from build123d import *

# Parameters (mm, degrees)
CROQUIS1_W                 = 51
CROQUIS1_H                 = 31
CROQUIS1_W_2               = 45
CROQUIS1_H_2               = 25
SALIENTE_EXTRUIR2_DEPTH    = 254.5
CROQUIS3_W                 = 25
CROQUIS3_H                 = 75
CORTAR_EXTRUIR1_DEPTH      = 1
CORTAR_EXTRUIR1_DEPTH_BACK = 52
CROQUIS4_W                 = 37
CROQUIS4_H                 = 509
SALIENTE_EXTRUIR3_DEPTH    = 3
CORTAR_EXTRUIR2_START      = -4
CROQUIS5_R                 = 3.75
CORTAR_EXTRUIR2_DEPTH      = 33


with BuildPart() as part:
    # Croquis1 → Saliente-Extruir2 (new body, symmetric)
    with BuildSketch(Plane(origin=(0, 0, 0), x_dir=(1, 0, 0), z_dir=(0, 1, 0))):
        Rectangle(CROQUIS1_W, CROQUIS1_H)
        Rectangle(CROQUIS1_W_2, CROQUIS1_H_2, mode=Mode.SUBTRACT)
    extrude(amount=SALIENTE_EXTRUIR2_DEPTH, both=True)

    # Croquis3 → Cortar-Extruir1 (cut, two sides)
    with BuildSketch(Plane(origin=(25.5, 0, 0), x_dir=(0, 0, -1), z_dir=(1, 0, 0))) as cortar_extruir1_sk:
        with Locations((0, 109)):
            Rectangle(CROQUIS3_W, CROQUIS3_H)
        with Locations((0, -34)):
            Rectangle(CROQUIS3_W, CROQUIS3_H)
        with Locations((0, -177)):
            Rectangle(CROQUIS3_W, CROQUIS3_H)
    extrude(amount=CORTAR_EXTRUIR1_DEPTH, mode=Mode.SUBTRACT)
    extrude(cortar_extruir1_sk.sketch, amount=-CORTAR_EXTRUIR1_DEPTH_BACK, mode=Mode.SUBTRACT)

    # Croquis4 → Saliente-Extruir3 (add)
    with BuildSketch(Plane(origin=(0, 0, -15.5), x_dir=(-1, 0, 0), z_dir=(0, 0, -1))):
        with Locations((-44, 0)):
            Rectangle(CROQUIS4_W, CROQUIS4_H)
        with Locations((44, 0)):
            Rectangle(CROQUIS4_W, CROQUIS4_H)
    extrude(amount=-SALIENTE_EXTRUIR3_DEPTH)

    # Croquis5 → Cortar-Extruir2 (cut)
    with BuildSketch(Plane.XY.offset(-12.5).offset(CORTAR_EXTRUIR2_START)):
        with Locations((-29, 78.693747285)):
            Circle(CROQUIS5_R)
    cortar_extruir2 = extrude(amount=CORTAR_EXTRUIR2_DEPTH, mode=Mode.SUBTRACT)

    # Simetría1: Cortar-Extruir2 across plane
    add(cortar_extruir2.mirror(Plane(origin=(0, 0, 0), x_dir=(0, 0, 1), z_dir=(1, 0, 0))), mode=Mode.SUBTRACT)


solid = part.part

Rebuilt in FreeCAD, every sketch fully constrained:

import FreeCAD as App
import Part
import Sketcher


def add_polygon(sketch, points):
    """Adds a closed chain of lines whose ends are joined by coincident constraints."""
    first, n = sketch.GeometryCount, len(points)
    for a, b in zip(points, points[1:] + points[:1]):
        sketch.addGeometry(Part.LineSegment(App.Vector(*a, 0), App.Vector(*b, 0)), False)
    for i in range(n):
        sketch.addConstraint(Sketcher.Constraint("Coincident", first + i, 2, first + (i + 1) % n, 1))

doc = App.newDocument("Part")
params = doc.addObject("Spreadsheet::Sheet", "Params")
for row, (alias, value) in enumerate([
    ("sketch1_width", "51 mm"),
    ("sketch1_width2", "45 mm"),
    ("sketch1_height", "31 mm"),
    ("sketch1_height2", "25 mm"),
    ("pad1_length", "509 mm"),
    ("sketch2_width", "75 mm"),
    ("sketch2_height", "25 mm"),
    ("sketch3_width", "37 mm"),
    ("sketch3_height", "509 mm"),
    ("pad2_length", "3 mm"),
    ("sketch4_diameter", "7.5 mm"),
    ("pocket2_length", "33 mm"),
], start=1):
    params.set(f"A{row}", alias)
    params.set(f"B{row}", "=" + value)
    params.setAlias(f"B{row}", alias)

body = doc.addObject("PartDesign::Body", "Body")

sketch1 = doc.addObject("Sketcher::SketchObject", "Sketch")
body.addObject(sketch1)
sketch1.AttachmentSupport = (doc.XZ_Plane, [""])
sketch1.MapMode = "FlatFace"
add_polygon(sketch1, [(-25.5, -15.5), (-25.5, 15.5), (25.5, 15.5), (25.5, -15.5)])
add_polygon(sketch1, [(22.5, 12.5), (-22.5, 12.5), (-22.5, -12.5), (22.5, -12.5)])
sketch1.addConstraint(Sketcher.Constraint("Vertical", 0))
sketch1.addConstraint(Sketcher.Constraint("Horizontal", 1))
sketch1.addConstraint(Sketcher.Constraint("Vertical", 2))
sketch1.addConstraint(Sketcher.Constraint("Horizontal", 3))
sketch1.addConstraint(Sketcher.Constraint("Horizontal", 4))
sketch1.addConstraint(Sketcher.Constraint("Vertical", 5))
sketch1.addConstraint(Sketcher.Constraint("Horizontal", 6))
sketch1.addConstraint(Sketcher.Constraint("Vertical", 7))
sketch1.addConstraint(Sketcher.Constraint("Symmetric", 0, 2, 2, 2, -1, 1))
sketch1.addConstraint(Sketcher.Constraint("Symmetric", 4, 2, 6, 2, -1, 1))
sketch1.addConstraint(Sketcher.Constraint("DistanceX", 1, 1, 1, 2, 51.0))
sketch1.addConstraint(Sketcher.Constraint("DistanceX", 4, 2, 4, 1, 45.0))
sketch1.addConstraint(Sketcher.Constraint("DistanceY", 0, 1, 0, 2, 31.0))
sketch1.addConstraint(Sketcher.Constraint("DistanceY", 5, 2, 5, 1, 25.0))
sketch1.setExpression("Constraints[18]", "Params.sketch1_width")
sketch1.setExpression("Constraints[19]", "Params.sketch1_width2")
sketch1.setExpression("Constraints[20]", "Params.sketch1_height")
sketch1.setExpression("Constraints[21]", "Params.sketch1_height2")
pad1 = doc.addObject("PartDesign::Pad", "Pad")
body.addObject(pad1)
pad1.Profile = sketch1
pad1.setExpression("Length", "Params.pad1_length")
pad1.Midplane = True

sketch2 = doc.addObject("Sketcher::SketchObject", "Sketch001")
body.addObject(sketch2)
sketch2.AttachmentSupport = (doc.YZ_Plane, [""])
sketch2.MapMode = "FlatFace"
sketch2.AttachmentOffset = App.Placement(App.Vector(0, 0, 25.5), App.Rotation())
add_polygon(sketch2, [(146.5, 12.5), (71.5, 12.5), (71.5, -12.5), (146.5, -12.5)])
add_polygon(sketch2, [(3.5, 12.5), (-71.5, 12.5), (-71.5, -12.5), (3.5, -12.5)])
add_polygon(sketch2, [(-139.5, 12.5), (-214.5, 12.5), (-214.5, -12.5), (-139.5, -12.5)])
sketch2.addConstraint(Sketcher.Constraint("Horizontal", 0))
sketch2.addConstraint(Sketcher.Constraint("Vertical", 1))
sketch2.addConstraint(Sketcher.Constraint("Horizontal", 2))
sketch2.addConstraint(Sketcher.Constraint("Vertical", 3))
sketch2.addConstraint(Sketcher.Constraint("Horizontal", 4))
sketch2.addConstraint(Sketcher.Constraint("Vertical", 5))
sketch2.addConstraint(Sketcher.Constraint("Horizontal", 6))
sketch2.addConstraint(Sketcher.Constraint("Vertical", 7))
sketch2.addConstraint(Sketcher.Constraint("Horizontal", 8))
sketch2.addConstraint(Sketcher.Constraint("Vertical", 9))
sketch2.addConstraint(Sketcher.Constraint("Horizontal", 10))
sketch2.addConstraint(Sketcher.Constraint("Vertical", 11))
sketch2.addConstraint(Sketcher.Constraint("Symmetric", 1, 2, 4, 2, -1, 1))
sketch2.addConstraint(Sketcher.Constraint("Horizontal", 3, 2, 4, 2))
sketch2.addConstraint(Sketcher.Constraint("Horizontal", 2, 2, 5, 2))
sketch2.addConstraint(Sketcher.Constraint("Horizontal", 7, 2, 8, 2))
sketch2.addConstraint(Sketcher.Constraint("Horizontal", 6, 2, 9, 2))
sketch2.addConstraint(Sketcher.Constraint("Equal", 2, 4))
sketch2.addConstraint(Sketcher.Constraint("Equal", 6, 8))
sketch2.addConstraint(Sketcher.Constraint("DistanceX", 0, 2, 0, 1, 75.0))
sketch2.addConstraint(Sketcher.Constraint("DistanceY", 1, 2, 1, 1, 25.0))
sketch2.addConstraint(Sketcher.Constraint("DistanceX", 4, 2, 0, 2, 143.0))
sketch2.addConstraint(Sketcher.Constraint("DistanceX", 8, 2, 4, 2, 143.0))
sketch2.setExpression("Constraints[31]", "Params.sketch2_width")
sketch2.setExpression("Constraints[32]", "Params.sketch2_height")
pocket1 = doc.addObject("PartDesign::Pocket", "Pocket")
body.addObject(pocket1)
pocket1.Profile = sketch2
pocket1.Type = "ThroughAll"
pocket1.Midplane = True

sketch3 = doc.addObject("Sketcher::SketchObject", "Sketch002")
body.addObject(sketch3)
sketch3.AttachmentSupport = (doc.XY_Plane, [""])
sketch3.MapMode = "FlatFace"
sketch3.AttachmentOffset = App.Placement(App.Vector(0, 0, -15.5), App.Rotation())
add_polygon(sketch3, [(62.5, 254.5), (62.5, -254.5), (25.5, -254.5), (25.5, 254.5)])
add_polygon(sketch3, [(-25.5, 254.5), (-25.5, -254.5), (-62.5, -254.5), (-62.5, 254.5)])
sketch3.addConstraint(Sketcher.Constraint("Vertical", 0))
sketch3.addConstraint(Sketcher.Constraint("Horizontal", 1))
sketch3.addConstraint(Sketcher.Constraint("Vertical", 2))
sketch3.addConstraint(Sketcher.Constraint("Horizontal", 3))
sketch3.addConstraint(Sketcher.Constraint("Vertical", 4))
sketch3.addConstraint(Sketcher.Constraint("Horizontal", 5))
sketch3.addConstraint(Sketcher.Constraint("Vertical", 6))
sketch3.addConstraint(Sketcher.Constraint("Horizontal", 7))
sketch3.addConstraint(Sketcher.Constraint("Symmetric", 2, 2, 4, 2, -1, 1))
sketch3.addConstraint(Sketcher.Constraint("Symmetric", 0, 2, 6, 2, -1, 1))
sketch3.addConstraint(Sketcher.Constraint("Horizontal", 1, 2, 4, 2))
sketch3.addConstraint(Sketcher.Constraint("DistanceX", 1, 2, 1, 1, 37.0))
sketch3.addConstraint(Sketcher.Constraint("DistanceY", 0, 2, 0, 1, 509.0))
sketch3.addConstraint(Sketcher.Constraint("DistanceX", 4, 2, 1, 2, 51.0))
sketch3.setExpression("Constraints[19]", "Params.sketch3_width")
sketch3.setExpression("Constraints[20]", "Params.sketch3_height")
pad2 = doc.addObject("PartDesign::Pad", "Pad001")
body.addObject(pad2)
pad2.Profile = sketch3
pad2.setExpression("Length", "Params.pad2_length")

sketch4 = doc.addObject("Sketcher::SketchObject", "Sketch003")
body.addObject(sketch4)
sketch4.AttachmentSupport = (doc.XY_Plane, [""])
sketch4.MapMode = "FlatFace"
sketch4.AttachmentOffset = App.Placement(App.Vector(0, 0, -16.5), App.Rotation())
sketch4.addGeometry(Part.Circle(App.Vector(-29, 78.693747, 0), App.Vector(0, 0, 1), 3.75), False)
sketch4.addConstraint(Sketcher.Constraint("Diameter", 0, 7.5))
sketch4.addConstraint(Sketcher.Constraint("DistanceX", 0, 3, -1, 1, 29.0))
sketch4.addConstraint(Sketcher.Constraint("DistanceY", -1, 1, 0, 3, 78.693747))
sketch4.setExpression("Constraints[0]", "Params.sketch4_diameter")
pocket2 = doc.addObject("PartDesign::Pocket", "Pocket001")
body.addObject(pocket2)
pocket2.Profile = sketch4
pocket2.setExpression("Length", "Params.pocket2_length")
pocket2.Reversed = True
doc.recompute()

mirrored = doc.addObject("PartDesign::Mirrored", "Mirrored")
body.addObject(mirrored)
mirrored.Originals = [pocket2]
mirrored.MirrorPlane = (doc.YZ_Plane, [""])
body.Tip = mirrored

doc.recompute()
